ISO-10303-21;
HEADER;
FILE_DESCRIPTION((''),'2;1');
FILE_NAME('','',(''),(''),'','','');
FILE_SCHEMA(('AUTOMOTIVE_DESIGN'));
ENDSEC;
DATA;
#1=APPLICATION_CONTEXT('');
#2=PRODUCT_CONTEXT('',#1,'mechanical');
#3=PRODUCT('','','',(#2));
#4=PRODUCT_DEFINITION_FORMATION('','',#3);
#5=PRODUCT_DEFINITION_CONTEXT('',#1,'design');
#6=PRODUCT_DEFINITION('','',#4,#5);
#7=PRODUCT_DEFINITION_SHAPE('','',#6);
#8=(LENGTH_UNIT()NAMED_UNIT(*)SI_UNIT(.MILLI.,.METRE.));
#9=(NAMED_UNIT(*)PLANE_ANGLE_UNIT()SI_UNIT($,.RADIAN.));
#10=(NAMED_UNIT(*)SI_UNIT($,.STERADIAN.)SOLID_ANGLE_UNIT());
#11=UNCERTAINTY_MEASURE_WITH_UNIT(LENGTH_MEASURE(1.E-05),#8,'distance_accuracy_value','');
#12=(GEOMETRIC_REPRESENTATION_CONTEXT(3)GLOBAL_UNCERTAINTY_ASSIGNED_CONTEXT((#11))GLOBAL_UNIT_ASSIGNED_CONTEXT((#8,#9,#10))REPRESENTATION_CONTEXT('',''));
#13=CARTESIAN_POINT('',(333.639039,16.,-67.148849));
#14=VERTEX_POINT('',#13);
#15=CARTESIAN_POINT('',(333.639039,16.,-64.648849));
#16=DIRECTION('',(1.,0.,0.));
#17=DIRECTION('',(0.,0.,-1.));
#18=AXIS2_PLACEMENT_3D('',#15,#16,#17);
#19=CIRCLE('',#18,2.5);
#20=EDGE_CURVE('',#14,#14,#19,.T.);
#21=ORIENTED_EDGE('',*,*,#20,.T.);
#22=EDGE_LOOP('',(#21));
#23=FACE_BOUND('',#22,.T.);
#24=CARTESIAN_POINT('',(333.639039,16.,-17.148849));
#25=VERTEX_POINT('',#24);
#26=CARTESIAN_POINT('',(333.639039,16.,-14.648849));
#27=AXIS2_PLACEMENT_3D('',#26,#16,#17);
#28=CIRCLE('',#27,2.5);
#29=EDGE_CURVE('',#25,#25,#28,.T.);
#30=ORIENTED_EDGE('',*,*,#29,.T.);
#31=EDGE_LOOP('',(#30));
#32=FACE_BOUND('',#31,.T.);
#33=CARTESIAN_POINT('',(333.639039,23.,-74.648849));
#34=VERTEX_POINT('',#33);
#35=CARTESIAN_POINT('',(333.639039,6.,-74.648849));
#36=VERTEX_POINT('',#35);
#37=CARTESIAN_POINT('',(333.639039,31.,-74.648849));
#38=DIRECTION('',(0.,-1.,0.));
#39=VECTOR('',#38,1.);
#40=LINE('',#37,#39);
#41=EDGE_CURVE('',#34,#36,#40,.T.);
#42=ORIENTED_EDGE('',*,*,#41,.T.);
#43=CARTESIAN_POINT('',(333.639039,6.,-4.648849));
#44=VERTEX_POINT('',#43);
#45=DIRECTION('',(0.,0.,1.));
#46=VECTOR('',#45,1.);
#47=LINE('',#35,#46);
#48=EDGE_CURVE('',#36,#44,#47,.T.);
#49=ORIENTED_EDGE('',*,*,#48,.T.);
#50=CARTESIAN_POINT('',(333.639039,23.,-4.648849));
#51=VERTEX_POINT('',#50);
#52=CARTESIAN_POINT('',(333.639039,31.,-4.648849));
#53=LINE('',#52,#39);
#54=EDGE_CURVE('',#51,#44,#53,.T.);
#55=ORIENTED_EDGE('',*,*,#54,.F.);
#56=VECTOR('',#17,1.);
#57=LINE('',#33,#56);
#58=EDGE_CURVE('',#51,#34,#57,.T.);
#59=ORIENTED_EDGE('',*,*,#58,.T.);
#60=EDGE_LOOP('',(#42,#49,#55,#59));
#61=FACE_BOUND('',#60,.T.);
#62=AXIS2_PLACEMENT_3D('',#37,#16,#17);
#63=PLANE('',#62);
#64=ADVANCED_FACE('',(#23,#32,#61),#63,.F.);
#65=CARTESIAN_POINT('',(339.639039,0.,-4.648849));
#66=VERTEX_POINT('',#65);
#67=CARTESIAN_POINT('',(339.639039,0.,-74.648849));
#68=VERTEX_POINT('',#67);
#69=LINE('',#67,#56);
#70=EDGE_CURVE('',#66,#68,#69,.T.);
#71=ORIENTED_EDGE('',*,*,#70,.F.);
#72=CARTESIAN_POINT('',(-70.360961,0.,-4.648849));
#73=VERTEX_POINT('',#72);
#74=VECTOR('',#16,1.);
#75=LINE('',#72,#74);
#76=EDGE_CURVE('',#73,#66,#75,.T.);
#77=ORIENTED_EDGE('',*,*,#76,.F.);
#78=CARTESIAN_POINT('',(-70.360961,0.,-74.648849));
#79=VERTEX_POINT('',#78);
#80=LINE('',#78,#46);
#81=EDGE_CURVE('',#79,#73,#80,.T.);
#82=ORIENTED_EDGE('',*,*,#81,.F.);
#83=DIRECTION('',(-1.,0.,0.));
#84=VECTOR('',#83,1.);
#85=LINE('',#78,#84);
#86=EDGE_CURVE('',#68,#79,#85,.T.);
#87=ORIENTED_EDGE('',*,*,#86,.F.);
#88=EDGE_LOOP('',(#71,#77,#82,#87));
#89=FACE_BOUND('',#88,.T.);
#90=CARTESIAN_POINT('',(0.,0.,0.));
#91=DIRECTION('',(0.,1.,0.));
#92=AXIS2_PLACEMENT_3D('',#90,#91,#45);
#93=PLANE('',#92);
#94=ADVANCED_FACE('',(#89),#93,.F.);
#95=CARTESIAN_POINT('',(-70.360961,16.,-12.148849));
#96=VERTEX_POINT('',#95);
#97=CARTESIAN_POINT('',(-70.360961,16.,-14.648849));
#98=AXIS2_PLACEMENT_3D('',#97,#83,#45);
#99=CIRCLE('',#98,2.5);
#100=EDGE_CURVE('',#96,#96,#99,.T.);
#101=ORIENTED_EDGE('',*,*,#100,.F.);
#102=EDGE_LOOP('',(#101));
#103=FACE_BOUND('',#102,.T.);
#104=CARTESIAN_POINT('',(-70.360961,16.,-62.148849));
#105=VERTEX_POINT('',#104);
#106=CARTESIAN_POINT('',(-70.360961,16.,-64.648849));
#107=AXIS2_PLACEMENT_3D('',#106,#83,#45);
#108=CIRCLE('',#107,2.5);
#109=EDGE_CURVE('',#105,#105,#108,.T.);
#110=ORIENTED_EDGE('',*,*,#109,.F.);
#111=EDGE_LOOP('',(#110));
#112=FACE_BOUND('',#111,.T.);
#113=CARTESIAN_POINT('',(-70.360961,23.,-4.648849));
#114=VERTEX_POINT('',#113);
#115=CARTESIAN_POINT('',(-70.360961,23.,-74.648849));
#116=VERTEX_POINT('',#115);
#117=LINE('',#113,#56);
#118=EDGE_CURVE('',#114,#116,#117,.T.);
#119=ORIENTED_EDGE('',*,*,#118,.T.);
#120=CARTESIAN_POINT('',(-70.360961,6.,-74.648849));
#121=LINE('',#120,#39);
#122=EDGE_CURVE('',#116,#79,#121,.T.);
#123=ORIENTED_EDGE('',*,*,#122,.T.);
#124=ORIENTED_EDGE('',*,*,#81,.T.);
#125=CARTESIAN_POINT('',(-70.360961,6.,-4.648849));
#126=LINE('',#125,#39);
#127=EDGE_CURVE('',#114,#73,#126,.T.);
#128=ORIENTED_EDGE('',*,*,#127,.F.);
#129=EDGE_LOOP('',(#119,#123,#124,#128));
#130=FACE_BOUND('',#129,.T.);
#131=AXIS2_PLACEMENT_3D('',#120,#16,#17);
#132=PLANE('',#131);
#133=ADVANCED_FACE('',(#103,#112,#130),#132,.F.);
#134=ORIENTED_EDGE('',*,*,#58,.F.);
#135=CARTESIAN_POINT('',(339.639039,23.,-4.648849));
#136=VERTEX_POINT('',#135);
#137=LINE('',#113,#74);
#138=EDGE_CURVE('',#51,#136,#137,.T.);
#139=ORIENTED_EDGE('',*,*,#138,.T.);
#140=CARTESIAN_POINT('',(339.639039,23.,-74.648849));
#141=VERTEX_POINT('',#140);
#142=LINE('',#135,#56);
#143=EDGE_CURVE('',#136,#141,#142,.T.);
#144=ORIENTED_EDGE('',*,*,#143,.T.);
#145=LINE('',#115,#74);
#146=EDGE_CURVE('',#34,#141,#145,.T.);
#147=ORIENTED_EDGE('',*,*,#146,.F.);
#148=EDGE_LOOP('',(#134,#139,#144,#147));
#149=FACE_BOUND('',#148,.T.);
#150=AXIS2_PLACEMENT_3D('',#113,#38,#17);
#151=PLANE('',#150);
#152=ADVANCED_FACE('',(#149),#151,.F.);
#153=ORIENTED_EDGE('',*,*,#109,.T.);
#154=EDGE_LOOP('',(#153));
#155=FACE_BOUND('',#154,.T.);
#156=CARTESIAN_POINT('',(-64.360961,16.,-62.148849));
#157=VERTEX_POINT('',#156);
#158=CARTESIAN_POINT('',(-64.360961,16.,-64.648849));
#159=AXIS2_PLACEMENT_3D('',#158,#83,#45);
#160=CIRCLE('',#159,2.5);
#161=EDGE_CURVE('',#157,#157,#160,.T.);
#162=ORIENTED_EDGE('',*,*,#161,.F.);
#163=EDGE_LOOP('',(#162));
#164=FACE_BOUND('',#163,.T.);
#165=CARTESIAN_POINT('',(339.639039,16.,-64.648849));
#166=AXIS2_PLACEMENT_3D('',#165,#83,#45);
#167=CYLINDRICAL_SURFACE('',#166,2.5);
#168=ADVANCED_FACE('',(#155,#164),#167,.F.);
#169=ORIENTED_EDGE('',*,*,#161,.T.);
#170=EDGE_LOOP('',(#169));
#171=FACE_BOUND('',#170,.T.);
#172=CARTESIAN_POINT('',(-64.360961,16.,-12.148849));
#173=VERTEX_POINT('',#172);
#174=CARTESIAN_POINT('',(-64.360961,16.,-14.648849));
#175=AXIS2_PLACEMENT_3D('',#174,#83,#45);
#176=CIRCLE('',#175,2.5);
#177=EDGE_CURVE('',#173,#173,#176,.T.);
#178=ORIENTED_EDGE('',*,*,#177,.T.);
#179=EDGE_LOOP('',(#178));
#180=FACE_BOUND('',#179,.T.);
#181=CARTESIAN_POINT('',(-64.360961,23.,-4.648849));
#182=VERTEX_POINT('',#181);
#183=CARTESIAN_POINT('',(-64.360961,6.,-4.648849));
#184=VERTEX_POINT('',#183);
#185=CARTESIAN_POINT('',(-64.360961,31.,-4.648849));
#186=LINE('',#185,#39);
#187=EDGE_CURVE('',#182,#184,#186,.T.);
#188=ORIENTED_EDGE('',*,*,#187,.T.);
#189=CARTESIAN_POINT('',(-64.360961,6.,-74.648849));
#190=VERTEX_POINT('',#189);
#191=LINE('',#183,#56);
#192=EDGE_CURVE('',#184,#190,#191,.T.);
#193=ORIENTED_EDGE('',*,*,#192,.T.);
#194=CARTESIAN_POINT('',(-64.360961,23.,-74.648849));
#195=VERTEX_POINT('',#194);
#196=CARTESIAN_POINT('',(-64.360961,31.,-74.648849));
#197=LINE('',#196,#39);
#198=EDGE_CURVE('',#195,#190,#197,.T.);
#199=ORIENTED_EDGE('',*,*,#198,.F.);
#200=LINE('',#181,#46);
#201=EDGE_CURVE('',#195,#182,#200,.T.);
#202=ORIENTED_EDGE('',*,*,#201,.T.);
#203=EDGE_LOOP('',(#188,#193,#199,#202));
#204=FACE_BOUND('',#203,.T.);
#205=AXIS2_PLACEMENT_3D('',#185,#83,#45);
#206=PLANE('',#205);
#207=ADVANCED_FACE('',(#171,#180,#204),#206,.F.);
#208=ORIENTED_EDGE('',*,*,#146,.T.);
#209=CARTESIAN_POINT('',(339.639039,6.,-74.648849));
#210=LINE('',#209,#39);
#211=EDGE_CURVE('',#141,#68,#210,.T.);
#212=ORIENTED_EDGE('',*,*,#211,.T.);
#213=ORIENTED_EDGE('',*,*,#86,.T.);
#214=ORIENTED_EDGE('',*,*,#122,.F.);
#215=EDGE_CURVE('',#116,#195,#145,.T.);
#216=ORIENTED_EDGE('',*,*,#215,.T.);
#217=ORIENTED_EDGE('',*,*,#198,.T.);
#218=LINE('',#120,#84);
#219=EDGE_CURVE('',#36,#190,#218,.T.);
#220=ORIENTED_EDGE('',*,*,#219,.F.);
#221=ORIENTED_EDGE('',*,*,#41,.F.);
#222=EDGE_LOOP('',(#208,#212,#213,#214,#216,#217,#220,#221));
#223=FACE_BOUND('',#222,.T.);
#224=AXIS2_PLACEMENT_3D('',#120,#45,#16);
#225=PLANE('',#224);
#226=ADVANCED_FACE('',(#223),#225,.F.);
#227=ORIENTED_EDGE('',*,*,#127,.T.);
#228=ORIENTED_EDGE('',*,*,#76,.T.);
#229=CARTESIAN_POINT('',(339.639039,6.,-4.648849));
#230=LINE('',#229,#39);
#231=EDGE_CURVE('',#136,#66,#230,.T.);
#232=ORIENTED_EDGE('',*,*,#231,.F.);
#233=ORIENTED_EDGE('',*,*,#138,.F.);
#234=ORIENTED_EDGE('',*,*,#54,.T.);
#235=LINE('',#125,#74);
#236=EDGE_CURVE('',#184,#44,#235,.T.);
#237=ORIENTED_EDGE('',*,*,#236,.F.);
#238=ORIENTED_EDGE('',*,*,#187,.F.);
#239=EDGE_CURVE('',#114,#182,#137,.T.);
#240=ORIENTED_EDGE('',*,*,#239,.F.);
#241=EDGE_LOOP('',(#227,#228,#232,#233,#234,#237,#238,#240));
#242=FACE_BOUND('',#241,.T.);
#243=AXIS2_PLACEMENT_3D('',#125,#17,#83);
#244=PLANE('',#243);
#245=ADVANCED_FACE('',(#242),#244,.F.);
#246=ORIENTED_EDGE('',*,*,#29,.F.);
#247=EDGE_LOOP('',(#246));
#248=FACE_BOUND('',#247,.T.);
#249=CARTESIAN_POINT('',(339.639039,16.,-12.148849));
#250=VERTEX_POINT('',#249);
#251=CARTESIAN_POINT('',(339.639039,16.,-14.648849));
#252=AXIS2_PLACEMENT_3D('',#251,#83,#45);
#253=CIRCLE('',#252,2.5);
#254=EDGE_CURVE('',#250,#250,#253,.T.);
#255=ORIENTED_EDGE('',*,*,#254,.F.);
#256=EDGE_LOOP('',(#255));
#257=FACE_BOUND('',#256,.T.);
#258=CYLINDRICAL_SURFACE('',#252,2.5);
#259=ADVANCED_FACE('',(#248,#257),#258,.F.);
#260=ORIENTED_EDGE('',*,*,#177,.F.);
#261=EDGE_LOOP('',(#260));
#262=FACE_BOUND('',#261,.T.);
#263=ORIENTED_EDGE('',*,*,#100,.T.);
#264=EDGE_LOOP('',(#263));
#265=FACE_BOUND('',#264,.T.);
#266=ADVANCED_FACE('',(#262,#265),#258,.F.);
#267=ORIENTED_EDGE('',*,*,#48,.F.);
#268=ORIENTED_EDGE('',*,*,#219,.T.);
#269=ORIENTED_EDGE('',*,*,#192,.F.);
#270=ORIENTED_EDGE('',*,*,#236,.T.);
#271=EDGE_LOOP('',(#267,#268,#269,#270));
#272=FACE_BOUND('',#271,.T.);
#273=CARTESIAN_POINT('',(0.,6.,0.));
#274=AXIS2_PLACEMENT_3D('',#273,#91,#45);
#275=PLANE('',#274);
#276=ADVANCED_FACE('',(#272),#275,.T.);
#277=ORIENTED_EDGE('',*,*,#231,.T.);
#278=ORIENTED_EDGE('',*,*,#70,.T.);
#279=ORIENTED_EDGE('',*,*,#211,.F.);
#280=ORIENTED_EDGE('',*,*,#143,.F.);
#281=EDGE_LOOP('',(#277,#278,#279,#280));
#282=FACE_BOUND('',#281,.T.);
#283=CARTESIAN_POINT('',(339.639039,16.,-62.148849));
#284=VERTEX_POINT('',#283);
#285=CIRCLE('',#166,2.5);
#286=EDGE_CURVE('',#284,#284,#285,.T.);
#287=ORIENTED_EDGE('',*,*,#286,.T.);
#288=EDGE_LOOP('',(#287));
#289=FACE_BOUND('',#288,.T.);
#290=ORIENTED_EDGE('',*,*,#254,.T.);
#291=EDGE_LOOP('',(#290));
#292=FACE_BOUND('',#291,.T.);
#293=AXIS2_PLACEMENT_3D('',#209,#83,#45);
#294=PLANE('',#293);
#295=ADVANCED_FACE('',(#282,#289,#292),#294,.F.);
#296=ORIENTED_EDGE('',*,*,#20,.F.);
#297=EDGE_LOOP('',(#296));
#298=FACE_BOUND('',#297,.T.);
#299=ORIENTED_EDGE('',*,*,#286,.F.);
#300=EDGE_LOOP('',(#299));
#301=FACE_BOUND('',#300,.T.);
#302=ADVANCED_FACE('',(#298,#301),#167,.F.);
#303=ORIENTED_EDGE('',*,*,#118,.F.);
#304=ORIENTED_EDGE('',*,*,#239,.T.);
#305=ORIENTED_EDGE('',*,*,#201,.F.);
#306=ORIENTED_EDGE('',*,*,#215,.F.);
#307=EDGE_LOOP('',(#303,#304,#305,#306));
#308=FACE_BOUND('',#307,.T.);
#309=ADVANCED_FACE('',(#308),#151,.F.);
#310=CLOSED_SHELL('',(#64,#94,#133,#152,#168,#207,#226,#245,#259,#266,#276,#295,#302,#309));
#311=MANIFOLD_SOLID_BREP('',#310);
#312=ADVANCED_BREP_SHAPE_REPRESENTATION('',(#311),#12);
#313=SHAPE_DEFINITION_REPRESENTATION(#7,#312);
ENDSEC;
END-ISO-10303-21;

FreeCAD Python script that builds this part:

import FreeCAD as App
import Part
import Sketcher

V = App.Vector

doc = App.newDocument("Part")
body = doc.addObject("PartDesign::Body", "Body")

sketch1 = doc.addObject("Sketcher::SketchObject", "Sketch")
body.addObject(sketch1)
sketch1.AttachmentSupport = (doc.XZ_Plane, [""])
sketch1.MapMode = "FlatFace"
sketch1.addGeometry([
    Part.LineSegment(V(-70, -75, 0), V(-70, -5, 0)),
    Part.LineSegment(V(-70, -5, 0), V(340, -5, 0)),
    Part.LineSegment(V(340, -5, 0), V(340, -75, 0)),
    Part.LineSegment(V(340, -75, 0), V(-70, -75, 0)),
], False)
sketch1.addConstraint([
    Sketcher.Constraint("Coincident", 0, 2, 1, 1),
    Sketcher.Constraint("Coincident", 1, 2, 2, 1),
    Sketcher.Constraint("Coincident", 2, 2, 3, 1),
    Sketcher.Constraint("Coincident", 3, 2, 0, 1),
    Sketcher.Constraint("Vertical", 0),
    Sketcher.Constraint("Horizontal", 1),
    Sketcher.Constraint("Vertical", 2),
    Sketcher.Constraint("Horizontal", 3),
    Sketcher.Constraint("DistanceX", 1, 1, 1, 2, 410.0),
    Sketcher.Constraint("DistanceY", 0, 1, 0, 2, 70.0),
    Sketcher.Constraint("DistanceX", 0, 2, -1, 1, 70.360961),
    Sketcher.Constraint("DistanceY", 0, 2, -1, 1, 4.648849),
])
pad1 = doc.addObject("PartDesign::Pad", "Pad")
body.addObject(pad1)
pad1.Profile = sketch1
pad1.Length = 6
pad1.Reversed = True

sketch2 = doc.addObject("Sketcher::SketchObject", "Sketch001")
body.addObject(sketch2)
sketch2.AttachmentSupport = (doc.XZ_Plane, [""])
sketch2.MapMode = "FlatFace"
sketch2.AttachmentOffset = App.Placement(V(0, 0, -6), App.Rotation())
sketch2.addGeometry([
    Part.LineSegment(V(-70, -75, 0), V(-70, -5, 0)),
    Part.LineSegment(V(-70, -5, 0), V(-64, -5, 0)),
    Part.LineSegment(V(-64, -5, 0), V(-64, -75, 0)),
    Part.LineSegment(V(-64, -75, 0), V(-70, -75, 0)),
    Part.LineSegment(V(334, -75, 0), V(334, -5, 0)),
    Part.LineSegment(V(334, -5, 0), V(340, -5, 0)),
    Part.LineSegment(V(340, -5, 0), V(340, -75, 0)),
    Part.LineSegment(V(340, -75, 0), V(334, -75, 0)),
], False)
sketch2.addConstraint([
    Sketcher.Constraint("Coincident", 0, 2, 1, 1),
    Sketcher.Constraint("Coincident", 1, 2, 2, 1),
    Sketcher.Constraint("Coincident", 2, 2, 3, 1),
    Sketcher.Constraint("Coincident", 3, 2, 0, 1),
    Sketcher.Constraint("Coincident", 4, 2, 5, 1),
    Sketcher.Constraint("Coincident", 5, 2, 6, 1),
    Sketcher.Constraint("Coincident", 6, 2, 7, 1),
    Sketcher.Constraint("Coincident", 7, 2, 4, 1),
    Sketcher.Constraint("Vertical", 0),
    Sketcher.Constraint("Horizontal", 1),
    Sketcher.Constraint("Vertical", 2),
    Sketcher.Constraint("Horizontal", 3),
    Sketcher.Constraint("Vertical", 4),
    Sketcher.Constraint("Horizontal", 5),
    Sketcher.Constraint("Vertical", 6),
    Sketcher.Constraint("Horizontal", 7),
    Sketcher.Constraint("Horizontal", 1, 2, 4, 2),
    Sketcher.Constraint("Horizontal", 3, 2, 6, 2),
    Sketcher.Constraint("Equal", 3, 5),
    Sketcher.Constraint("DistanceX", 1, 1, 1, 2, 6.0),
    Sketcher.Constraint("DistanceY", 0, 1, 0, 2, 70.0),
    Sketcher.Constraint("DistanceX", 1, 2, 4, 2, 398.0),
    Sketcher.Constraint("DistanceX", 0, 2, -1, 1, 70.360961),
    Sketcher.Constraint("DistanceY", 0, 2, -1, 1, 4.648849),
])
pad2 = doc.addObject("PartDesign::Pad", "Pad001")
body.addObject(pad2)
pad2.Profile = sketch2
pad2.Length = 25
pad2.Reversed = True

sketch3 = doc.addObject("Sketcher::SketchObject", "Sketch002")
body.addObject(sketch3)
sketch3.AttachmentSupport = (doc.YZ_Plane, [""])
sketch3.MapMode = "FlatFace"
sketch3.AttachmentOffset = App.Placement(V(0, 0, -70.360961), App.Rotation())
sketch3.addGeometry([
    Part.Circle(V(16, -64.6, 0), V(0, 0, 1), 2.5),
    Part.Circle(V(16, -14.6, 0), V(0, 0, 1), 2.5),
], False)
sketch3.addConstraint([
    Sketcher.Constraint("Equal", 0, 1),
    Sketcher.Constraint("Vertical", 0, 3, 1, 3),
    Sketcher.Constraint("Diameter", 0, 5.0),
    Sketcher.Constraint("DistanceX", -1, 1, 0, 3, 16.0),
    Sketcher.Constraint("DistanceY", 0, 3, 1, 3, 50.0),
    Sketcher.Constraint("DistanceY", 0, 3, -1, 1, 64.648849),
])
pocket1 = doc.addObject("PartDesign::Pocket", "Pocket")
body.addObject(pocket1)
pocket1.Profile = sketch3
pocket1.Type = "ThroughAll"
pocket1.Reversed = True

sketch4 = doc.addObject("Sketcher::SketchObject", "Sketch003")
body.addObject(sketch4)
sketch4.AttachmentSupport = (doc.YZ_Plane, [""])
sketch4.MapMode = "FlatFace"
sketch4.AttachmentOffset = App.Placement(V(0, 0, 339.639039), App.Rotation())
sketch4.addGeometry([
    Part.LineSegment(V(31, -5, 0), V(23, -5, 0)),
    Part.LineSegment(V(23, -5, 0), V(23, -75, 0)),
    Part.LineSegment(V(23, -75, 0), V(31, -75, 0)),
    Part.LineSegment(V(31, -75, 0), V(31, -5, 0)),
], False)
sketch4.addConstraint([
    Sketcher.Constraint("Coincident", 0, 2, 1, 1),
    Sketcher.Constraint("Coincident", 1, 2, 2, 1),
    Sketcher.Constraint("Coincident", 2, 2, 3, 1),
    Sketcher.Constraint("Coincident", 3, 2, 0, 1),
    Sketcher.Constraint("Horizontal", 0),
    Sketcher.Constraint("Vertical", 1),
    Sketcher.Constraint("Horizontal", 2),
    Sketcher.Constraint("Vertical", 3),
    Sketcher.Constraint("DistanceX", 0, 2, 0, 1, 8.0),
    Sketcher.Constraint("DistanceY", 1, 2, 1, 1, 70.0),
    Sketcher.Constraint("DistanceX", -1, 1, 0, 2, 23.0),
    Sketcher.Constraint("DistanceY", 0, 2, -1, 1, 4.648849),
])
pocket2 = doc.addObject("PartDesign::Pocket", "Pocket001")
body.addObject(pocket2)
pocket2.Profile = sketch4
pocket2.Type = "ThroughAll"

doc.recompute()
